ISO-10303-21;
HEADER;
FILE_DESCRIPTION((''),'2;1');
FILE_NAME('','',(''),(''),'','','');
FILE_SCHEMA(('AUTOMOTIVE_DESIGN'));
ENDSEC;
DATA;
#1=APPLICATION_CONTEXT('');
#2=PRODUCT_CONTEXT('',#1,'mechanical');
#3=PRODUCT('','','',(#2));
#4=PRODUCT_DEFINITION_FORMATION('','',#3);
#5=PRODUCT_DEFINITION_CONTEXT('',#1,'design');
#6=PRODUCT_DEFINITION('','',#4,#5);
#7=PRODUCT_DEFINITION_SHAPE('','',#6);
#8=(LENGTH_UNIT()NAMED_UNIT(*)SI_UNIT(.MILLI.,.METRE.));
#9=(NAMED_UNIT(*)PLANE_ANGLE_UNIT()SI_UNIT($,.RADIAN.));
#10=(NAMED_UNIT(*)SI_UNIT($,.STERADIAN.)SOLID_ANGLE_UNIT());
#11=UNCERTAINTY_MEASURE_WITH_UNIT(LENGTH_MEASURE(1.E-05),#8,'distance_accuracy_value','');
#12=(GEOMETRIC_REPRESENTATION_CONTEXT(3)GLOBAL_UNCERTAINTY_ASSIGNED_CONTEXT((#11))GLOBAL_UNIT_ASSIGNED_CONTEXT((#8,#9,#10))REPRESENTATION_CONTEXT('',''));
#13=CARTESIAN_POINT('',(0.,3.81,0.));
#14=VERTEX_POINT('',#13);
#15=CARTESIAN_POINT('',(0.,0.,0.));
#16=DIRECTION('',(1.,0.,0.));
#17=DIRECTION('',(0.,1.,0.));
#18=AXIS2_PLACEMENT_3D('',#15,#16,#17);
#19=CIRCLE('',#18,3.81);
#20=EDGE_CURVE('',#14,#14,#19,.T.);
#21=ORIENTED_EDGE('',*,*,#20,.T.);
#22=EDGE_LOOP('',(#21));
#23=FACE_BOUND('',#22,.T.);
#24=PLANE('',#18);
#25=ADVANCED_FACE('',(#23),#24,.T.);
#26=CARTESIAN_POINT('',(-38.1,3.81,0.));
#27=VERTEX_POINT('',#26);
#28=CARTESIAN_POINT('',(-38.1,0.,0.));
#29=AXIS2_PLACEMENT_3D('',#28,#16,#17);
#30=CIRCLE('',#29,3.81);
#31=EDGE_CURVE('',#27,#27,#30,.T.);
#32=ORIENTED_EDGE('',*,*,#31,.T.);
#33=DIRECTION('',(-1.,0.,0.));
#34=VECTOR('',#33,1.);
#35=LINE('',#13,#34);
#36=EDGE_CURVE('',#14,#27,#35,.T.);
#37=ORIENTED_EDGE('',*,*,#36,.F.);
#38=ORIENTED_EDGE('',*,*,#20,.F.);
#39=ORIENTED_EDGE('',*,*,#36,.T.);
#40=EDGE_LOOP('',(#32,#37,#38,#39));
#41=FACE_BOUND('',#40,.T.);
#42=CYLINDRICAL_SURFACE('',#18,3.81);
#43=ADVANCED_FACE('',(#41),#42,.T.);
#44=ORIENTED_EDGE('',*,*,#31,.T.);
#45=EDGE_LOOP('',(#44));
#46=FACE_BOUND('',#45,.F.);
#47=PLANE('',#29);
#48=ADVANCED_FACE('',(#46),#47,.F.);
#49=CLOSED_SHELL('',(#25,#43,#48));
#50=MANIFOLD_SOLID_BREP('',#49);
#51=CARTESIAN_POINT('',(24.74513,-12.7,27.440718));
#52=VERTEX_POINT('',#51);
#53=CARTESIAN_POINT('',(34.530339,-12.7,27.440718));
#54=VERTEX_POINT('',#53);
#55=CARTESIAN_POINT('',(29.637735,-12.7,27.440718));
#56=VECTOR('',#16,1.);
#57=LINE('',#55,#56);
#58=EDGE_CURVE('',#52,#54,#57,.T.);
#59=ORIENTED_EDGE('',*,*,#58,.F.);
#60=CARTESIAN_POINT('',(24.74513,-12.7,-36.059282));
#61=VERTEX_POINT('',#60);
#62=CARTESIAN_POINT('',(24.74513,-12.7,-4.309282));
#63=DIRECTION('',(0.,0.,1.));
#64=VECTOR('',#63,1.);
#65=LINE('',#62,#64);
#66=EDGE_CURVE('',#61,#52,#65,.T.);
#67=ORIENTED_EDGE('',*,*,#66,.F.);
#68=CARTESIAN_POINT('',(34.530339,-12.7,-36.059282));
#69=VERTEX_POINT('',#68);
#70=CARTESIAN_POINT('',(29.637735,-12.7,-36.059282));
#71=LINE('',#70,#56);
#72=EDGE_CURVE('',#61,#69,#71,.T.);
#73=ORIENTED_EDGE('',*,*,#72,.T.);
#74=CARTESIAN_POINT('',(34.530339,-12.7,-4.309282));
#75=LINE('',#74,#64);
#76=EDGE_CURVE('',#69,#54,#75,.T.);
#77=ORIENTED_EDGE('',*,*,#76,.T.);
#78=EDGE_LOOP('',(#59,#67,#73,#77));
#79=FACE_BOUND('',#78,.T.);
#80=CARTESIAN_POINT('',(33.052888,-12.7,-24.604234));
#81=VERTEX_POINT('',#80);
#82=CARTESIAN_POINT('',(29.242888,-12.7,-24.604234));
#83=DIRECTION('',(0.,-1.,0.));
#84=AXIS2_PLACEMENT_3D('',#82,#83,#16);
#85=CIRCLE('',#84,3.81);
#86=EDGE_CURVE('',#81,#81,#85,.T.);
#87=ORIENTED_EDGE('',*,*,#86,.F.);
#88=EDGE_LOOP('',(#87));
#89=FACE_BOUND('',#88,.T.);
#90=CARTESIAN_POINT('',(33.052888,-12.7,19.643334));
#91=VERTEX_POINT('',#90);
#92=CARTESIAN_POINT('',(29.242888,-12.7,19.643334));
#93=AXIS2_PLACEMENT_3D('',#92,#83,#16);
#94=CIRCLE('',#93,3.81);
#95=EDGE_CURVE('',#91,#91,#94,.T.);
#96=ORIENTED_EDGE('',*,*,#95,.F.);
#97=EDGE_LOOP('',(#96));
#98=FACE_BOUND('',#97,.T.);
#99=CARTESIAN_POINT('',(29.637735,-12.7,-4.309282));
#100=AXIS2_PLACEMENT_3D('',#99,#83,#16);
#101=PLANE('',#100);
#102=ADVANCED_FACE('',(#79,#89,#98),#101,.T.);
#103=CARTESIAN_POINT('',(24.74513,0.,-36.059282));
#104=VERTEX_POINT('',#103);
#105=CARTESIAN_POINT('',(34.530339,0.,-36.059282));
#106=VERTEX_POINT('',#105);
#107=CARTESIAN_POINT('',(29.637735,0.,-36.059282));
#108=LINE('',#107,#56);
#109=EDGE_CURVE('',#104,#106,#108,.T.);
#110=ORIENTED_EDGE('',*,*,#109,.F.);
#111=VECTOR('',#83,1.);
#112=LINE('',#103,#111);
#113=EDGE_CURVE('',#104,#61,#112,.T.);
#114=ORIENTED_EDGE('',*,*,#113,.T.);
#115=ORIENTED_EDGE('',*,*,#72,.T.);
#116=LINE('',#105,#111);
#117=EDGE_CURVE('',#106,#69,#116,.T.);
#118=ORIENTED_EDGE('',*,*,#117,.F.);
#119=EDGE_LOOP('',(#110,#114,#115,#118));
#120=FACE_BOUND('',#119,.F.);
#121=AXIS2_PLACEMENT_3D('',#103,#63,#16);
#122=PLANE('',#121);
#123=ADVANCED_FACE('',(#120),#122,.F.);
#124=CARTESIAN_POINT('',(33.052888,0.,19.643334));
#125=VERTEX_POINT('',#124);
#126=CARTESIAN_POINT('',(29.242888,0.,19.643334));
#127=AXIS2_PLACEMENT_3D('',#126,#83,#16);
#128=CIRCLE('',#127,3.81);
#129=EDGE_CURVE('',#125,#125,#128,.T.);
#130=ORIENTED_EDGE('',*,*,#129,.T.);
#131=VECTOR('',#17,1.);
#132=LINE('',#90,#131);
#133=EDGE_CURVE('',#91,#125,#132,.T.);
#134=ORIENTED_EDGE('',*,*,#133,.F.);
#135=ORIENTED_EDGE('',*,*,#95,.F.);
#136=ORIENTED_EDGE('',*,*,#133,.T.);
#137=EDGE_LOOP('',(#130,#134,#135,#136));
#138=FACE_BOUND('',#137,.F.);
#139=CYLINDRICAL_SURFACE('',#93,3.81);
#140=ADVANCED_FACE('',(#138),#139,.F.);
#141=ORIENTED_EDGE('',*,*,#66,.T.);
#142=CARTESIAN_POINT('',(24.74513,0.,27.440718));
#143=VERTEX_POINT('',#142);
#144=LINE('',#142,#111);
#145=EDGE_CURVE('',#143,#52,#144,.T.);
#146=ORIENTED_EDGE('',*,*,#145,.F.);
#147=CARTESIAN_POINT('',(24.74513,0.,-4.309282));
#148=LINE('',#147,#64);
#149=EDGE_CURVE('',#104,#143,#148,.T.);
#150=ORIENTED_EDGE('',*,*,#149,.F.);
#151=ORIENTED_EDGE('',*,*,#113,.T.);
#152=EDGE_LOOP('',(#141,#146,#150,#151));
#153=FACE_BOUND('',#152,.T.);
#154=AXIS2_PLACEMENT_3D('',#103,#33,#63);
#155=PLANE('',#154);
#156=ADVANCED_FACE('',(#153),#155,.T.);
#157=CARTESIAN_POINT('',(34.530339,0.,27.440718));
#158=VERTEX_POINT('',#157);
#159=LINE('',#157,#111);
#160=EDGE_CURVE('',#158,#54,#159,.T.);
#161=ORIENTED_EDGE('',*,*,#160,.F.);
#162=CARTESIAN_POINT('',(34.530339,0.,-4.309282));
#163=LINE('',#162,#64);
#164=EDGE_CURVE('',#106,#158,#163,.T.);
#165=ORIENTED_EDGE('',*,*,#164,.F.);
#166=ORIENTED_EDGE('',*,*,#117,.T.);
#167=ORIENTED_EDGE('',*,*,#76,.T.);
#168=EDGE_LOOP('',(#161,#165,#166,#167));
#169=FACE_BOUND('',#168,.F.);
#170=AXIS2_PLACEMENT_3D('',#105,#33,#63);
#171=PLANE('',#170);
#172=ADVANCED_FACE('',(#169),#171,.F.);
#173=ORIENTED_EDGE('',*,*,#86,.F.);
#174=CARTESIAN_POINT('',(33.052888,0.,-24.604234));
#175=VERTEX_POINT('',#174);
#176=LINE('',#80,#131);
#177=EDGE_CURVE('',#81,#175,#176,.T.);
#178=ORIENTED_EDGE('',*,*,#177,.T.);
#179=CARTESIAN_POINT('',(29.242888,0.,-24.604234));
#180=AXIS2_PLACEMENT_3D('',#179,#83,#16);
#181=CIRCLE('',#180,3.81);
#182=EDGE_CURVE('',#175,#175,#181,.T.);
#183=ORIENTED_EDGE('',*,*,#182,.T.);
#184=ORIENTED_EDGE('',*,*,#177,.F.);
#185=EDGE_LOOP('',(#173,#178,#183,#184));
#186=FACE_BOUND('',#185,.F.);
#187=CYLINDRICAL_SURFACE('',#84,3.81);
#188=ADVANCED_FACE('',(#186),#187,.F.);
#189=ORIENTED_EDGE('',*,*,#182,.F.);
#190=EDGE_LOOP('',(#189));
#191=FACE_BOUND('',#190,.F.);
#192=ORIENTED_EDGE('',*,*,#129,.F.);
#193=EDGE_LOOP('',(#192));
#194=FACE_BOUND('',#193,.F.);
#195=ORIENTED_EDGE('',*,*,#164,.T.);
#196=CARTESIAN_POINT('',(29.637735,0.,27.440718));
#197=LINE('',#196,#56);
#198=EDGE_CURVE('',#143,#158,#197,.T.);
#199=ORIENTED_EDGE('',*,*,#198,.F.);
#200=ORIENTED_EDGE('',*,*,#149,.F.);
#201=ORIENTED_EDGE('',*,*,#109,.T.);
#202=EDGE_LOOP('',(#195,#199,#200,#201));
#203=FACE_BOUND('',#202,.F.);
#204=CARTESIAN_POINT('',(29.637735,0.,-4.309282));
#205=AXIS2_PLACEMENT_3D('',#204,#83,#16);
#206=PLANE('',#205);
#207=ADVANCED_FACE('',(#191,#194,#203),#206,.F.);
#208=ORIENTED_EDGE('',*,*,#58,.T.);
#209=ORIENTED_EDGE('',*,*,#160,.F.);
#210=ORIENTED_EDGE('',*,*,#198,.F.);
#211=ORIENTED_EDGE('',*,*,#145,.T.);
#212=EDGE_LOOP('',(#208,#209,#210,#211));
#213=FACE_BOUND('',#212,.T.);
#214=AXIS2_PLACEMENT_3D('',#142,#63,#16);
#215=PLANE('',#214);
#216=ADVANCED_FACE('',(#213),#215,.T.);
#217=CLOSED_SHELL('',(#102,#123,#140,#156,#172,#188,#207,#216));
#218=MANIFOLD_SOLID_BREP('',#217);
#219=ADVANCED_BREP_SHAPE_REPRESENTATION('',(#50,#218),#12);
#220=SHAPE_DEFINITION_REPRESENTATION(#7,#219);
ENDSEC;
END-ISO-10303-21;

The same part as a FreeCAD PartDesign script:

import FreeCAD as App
import Part
import Sketcher
from FreeCAD import Vector
Q = App.Units.Quantity

doc = App.newDocument("Part")
body = doc.addObject("PartDesign::Body", "Body")

sketch1 = body.newObject("Sketcher::SketchObject", "Sketch")
sketch1.AttachmentSupport = (doc.getObject("YZ_Plane"), [""])
sketch1.MapMode = "FlatFace"
sketch1.addGeometry(Part.Circle(Vector(0, 0, 0), Vector(0, 0, 1), 3.8), False)
sketch1.addConstraint([
    Sketcher.Constraint("Coincident", 0, 3, -1, 1),
    Sketcher.Constraint("Diameter", 0, Q("0.3 in")),
])
pad1 = body.newObject("PartDesign::Pad", "Pad")
pad1.Profile = sketch1
pad1.Length = Q("1.5 in")
pad1.Reversed = True
body2 = doc.addObject("PartDesign::Body", "Body001")

sketch2 = body2.newObject("Sketcher::SketchObject", "Sketch001")
sketch2.AttachmentSupport = (doc.getObject("XZ_Plane001"), [""])
sketch2.MapMode = "FlatFace"
sketch2.addGeometry([
    Part.LineSegment(Vector(25, 27, 0), Vector(25, -36, 0)),
    Part.LineSegment(Vector(25, -36, 0), Vector(35, -36, 0)),
    Part.LineSegment(Vector(35, -36, 0), Vector(35, 27, 0)),
    Part.LineSegment(Vector(35, 27, 0), Vector(25, 27, 0)),
], False)
sketch2.addConstraint([
    Sketcher.Constraint("Coincident", 0, 2, 1, 1),
    Sketcher.Constraint("Coincident", 1, 2, 2, 1),
    Sketcher.Constraint("Coincident", 2, 2, 3, 1),
    Sketcher.Constraint("Coincident", 3, 2, 0, 1),
    Sketcher.Constraint("Vertical", 0),
    Sketcher.Constraint("Horizontal", 1),
    Sketcher.Constraint("Vertical", 2),
    Sketcher.Constraint("Horizontal", 3),
    Sketcher.Constraint("DistanceY", 0, 2, 0, 1, Q("2.5 in")),
    Sketcher.Constraint("DistanceX", 1, 1, 1, 2, Q("9.785209 mm")),
    Sketcher.Constraint("DistanceX", -1, 1, 0, 2, Q("24.74513 mm")),
    Sketcher.Constraint("DistanceY", -1, 1, 2, 2, Q("27.440718 mm")),
])
pad2 = body2.newObject("PartDesign::Pad", "Pad001")
pad2.Profile = sketch2
pad2.Length = Q("0.5 in")

sketch3 = body2.newObject("Sketcher::SketchObject", "Sketch002")
sketch3.AttachmentSupport = (doc.getObject("XZ_Plane001"), [""])
sketch3.MapMode = "FlatFace"
sketch3.AttachmentOffset = App.Placement(Vector(0, 0, 0.5 * 25.4), App.Rotation())
sketch3.addGeometry([
    Part.Circle(Vector(29.2, 19.6, 0), Vector(0, 0, 1), 3.8),
    Part.Circle(Vector(29.2, -24.6, 0), Vector(0, 0, 1), 3.8),
], False)
sketch3.addConstraint([
    Sketcher.Constraint("Equal", 0, 1),
    Sketcher.Constraint("Vertical", 0, 3, 1, 3),
    Sketcher.Constraint("Diameter", 0, Q("0.3 in")),
    Sketcher.Constraint("DistanceX", -1, 1, 0, 3, Q("29.242888 mm")),
    Sketcher.Constraint("DistanceY", -1, 1, 0, 3, Q("19.643334 mm")),
    Sketcher.Constraint("DistanceY", 1, 3, -1, 1, Q("24.604234 mm")),
])
pocket1 = body2.newObject("PartDesign::Pocket", "Pocket")
pocket1.Profile = sketch3
pocket1.Length = Q("1 in")

doc.recompute()
